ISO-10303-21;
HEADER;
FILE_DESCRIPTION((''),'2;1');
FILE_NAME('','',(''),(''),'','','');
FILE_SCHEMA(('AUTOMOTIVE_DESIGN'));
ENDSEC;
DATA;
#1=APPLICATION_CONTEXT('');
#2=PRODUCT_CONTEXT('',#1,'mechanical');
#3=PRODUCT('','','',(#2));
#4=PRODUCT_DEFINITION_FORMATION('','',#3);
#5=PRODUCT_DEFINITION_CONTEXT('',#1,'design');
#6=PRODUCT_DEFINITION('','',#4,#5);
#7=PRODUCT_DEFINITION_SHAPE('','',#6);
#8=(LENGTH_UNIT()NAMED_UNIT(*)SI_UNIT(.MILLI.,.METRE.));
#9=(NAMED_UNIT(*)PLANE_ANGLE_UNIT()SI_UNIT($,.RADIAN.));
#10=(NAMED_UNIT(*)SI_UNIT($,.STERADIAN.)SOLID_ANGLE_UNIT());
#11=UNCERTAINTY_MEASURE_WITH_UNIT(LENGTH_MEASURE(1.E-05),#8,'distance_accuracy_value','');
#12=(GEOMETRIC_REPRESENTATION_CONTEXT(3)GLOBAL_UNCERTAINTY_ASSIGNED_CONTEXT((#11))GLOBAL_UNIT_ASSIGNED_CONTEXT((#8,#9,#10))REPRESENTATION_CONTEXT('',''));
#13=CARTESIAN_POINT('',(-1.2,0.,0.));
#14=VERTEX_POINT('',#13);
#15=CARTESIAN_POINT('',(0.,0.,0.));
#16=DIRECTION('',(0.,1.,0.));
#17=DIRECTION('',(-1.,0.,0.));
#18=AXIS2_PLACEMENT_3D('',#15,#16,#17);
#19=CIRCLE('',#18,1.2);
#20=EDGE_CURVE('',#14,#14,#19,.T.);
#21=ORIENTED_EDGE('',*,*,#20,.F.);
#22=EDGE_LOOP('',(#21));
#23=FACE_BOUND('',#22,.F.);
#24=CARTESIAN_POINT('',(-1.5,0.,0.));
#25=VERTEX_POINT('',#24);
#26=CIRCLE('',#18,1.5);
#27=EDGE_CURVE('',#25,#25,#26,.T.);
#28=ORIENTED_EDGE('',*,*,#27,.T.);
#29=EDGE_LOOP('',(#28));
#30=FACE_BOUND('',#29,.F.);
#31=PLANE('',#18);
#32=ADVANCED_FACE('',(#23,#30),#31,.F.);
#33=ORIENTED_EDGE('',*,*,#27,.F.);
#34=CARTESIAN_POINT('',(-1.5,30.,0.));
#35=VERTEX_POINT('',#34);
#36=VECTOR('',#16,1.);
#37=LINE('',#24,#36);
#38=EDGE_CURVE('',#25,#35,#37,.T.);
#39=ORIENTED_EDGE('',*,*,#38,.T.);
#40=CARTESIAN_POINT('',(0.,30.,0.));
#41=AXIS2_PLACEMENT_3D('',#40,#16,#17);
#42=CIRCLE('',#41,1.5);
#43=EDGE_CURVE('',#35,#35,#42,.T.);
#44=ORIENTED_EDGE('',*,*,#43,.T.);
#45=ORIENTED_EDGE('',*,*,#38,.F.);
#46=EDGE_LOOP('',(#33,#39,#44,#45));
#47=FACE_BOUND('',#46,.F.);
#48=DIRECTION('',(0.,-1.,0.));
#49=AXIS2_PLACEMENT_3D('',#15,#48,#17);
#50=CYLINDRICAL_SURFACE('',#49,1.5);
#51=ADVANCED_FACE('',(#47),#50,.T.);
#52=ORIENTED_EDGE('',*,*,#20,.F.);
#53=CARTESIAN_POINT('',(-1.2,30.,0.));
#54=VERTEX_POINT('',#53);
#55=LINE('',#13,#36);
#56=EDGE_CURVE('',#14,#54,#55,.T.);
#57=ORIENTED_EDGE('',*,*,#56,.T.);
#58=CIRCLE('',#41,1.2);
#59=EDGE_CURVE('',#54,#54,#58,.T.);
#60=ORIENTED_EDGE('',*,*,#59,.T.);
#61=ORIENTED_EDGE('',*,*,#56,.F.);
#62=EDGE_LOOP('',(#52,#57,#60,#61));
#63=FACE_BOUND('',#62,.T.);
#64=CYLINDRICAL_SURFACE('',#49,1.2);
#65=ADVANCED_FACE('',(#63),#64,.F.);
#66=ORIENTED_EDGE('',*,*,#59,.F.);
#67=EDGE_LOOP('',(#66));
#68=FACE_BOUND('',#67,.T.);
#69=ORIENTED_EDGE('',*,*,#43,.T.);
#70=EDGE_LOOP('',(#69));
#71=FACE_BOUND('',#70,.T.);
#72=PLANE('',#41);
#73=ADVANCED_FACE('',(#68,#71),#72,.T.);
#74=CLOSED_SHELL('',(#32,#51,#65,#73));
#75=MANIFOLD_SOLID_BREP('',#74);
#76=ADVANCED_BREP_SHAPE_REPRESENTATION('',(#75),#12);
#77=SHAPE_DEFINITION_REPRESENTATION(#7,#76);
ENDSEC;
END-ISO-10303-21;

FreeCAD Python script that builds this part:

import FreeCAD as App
import Part
import Sketcher

V = App.Vector
Q = App.Units.Quantity

doc = App.newDocument("Part")
params = doc.addObject("Spreadsheet::Sheet", "Params")
for row, (alias, value) in enumerate([
    ("sketch1_diameter", "3 mm"),
    ("sketch1_diameter2", "2.4 mm"),
    ("pad1_length", "30 mm"),
], start=1):
    params.set(f"A{row}", alias)
    params.set(f"B{row}", "=" + value)
    params.setAlias(f"B{row}", alias)

body = doc.addObject("PartDesign::Body", "Body")

sketch1 = body.newObject("Sketcher::SketchObject", "Sketch")
sketch1.AttachmentSupport = (doc.getObject("XZ_Plane"), [""])
sketch1.MapMode = "FlatFace"
sketch1.addGeometry([
    Part.Circle(V(0, 0, 0), V(0, 0, 1), 1.5),
    Part.Circle(V(0, 0, 0), V(0, 0, 1), 1.2),
], False)
sketch1.addConstraint([
    Sketcher.Constraint("Coincident", 0, 3, -1, 1),
    Sketcher.Constraint("Coincident", 1, 3, -1, 1),
    Sketcher.Constraint("Diameter", 0, Q("3 mm")),
    Sketcher.Constraint("Diameter", 1, Q("2.4 mm")),
])
sketch1.setExpression("Constraints[2]", "Params.sketch1_diameter")
sketch1.setExpression("Constraints[3]", "Params.sketch1_diameter2")
pad1 = body.newObject("PartDesign::Pad", "Pad")
pad1.Profile = sketch1
pad1.setExpression("Length", "Params.pad1_length")
pad1.Reversed = True

doc.recompute()
